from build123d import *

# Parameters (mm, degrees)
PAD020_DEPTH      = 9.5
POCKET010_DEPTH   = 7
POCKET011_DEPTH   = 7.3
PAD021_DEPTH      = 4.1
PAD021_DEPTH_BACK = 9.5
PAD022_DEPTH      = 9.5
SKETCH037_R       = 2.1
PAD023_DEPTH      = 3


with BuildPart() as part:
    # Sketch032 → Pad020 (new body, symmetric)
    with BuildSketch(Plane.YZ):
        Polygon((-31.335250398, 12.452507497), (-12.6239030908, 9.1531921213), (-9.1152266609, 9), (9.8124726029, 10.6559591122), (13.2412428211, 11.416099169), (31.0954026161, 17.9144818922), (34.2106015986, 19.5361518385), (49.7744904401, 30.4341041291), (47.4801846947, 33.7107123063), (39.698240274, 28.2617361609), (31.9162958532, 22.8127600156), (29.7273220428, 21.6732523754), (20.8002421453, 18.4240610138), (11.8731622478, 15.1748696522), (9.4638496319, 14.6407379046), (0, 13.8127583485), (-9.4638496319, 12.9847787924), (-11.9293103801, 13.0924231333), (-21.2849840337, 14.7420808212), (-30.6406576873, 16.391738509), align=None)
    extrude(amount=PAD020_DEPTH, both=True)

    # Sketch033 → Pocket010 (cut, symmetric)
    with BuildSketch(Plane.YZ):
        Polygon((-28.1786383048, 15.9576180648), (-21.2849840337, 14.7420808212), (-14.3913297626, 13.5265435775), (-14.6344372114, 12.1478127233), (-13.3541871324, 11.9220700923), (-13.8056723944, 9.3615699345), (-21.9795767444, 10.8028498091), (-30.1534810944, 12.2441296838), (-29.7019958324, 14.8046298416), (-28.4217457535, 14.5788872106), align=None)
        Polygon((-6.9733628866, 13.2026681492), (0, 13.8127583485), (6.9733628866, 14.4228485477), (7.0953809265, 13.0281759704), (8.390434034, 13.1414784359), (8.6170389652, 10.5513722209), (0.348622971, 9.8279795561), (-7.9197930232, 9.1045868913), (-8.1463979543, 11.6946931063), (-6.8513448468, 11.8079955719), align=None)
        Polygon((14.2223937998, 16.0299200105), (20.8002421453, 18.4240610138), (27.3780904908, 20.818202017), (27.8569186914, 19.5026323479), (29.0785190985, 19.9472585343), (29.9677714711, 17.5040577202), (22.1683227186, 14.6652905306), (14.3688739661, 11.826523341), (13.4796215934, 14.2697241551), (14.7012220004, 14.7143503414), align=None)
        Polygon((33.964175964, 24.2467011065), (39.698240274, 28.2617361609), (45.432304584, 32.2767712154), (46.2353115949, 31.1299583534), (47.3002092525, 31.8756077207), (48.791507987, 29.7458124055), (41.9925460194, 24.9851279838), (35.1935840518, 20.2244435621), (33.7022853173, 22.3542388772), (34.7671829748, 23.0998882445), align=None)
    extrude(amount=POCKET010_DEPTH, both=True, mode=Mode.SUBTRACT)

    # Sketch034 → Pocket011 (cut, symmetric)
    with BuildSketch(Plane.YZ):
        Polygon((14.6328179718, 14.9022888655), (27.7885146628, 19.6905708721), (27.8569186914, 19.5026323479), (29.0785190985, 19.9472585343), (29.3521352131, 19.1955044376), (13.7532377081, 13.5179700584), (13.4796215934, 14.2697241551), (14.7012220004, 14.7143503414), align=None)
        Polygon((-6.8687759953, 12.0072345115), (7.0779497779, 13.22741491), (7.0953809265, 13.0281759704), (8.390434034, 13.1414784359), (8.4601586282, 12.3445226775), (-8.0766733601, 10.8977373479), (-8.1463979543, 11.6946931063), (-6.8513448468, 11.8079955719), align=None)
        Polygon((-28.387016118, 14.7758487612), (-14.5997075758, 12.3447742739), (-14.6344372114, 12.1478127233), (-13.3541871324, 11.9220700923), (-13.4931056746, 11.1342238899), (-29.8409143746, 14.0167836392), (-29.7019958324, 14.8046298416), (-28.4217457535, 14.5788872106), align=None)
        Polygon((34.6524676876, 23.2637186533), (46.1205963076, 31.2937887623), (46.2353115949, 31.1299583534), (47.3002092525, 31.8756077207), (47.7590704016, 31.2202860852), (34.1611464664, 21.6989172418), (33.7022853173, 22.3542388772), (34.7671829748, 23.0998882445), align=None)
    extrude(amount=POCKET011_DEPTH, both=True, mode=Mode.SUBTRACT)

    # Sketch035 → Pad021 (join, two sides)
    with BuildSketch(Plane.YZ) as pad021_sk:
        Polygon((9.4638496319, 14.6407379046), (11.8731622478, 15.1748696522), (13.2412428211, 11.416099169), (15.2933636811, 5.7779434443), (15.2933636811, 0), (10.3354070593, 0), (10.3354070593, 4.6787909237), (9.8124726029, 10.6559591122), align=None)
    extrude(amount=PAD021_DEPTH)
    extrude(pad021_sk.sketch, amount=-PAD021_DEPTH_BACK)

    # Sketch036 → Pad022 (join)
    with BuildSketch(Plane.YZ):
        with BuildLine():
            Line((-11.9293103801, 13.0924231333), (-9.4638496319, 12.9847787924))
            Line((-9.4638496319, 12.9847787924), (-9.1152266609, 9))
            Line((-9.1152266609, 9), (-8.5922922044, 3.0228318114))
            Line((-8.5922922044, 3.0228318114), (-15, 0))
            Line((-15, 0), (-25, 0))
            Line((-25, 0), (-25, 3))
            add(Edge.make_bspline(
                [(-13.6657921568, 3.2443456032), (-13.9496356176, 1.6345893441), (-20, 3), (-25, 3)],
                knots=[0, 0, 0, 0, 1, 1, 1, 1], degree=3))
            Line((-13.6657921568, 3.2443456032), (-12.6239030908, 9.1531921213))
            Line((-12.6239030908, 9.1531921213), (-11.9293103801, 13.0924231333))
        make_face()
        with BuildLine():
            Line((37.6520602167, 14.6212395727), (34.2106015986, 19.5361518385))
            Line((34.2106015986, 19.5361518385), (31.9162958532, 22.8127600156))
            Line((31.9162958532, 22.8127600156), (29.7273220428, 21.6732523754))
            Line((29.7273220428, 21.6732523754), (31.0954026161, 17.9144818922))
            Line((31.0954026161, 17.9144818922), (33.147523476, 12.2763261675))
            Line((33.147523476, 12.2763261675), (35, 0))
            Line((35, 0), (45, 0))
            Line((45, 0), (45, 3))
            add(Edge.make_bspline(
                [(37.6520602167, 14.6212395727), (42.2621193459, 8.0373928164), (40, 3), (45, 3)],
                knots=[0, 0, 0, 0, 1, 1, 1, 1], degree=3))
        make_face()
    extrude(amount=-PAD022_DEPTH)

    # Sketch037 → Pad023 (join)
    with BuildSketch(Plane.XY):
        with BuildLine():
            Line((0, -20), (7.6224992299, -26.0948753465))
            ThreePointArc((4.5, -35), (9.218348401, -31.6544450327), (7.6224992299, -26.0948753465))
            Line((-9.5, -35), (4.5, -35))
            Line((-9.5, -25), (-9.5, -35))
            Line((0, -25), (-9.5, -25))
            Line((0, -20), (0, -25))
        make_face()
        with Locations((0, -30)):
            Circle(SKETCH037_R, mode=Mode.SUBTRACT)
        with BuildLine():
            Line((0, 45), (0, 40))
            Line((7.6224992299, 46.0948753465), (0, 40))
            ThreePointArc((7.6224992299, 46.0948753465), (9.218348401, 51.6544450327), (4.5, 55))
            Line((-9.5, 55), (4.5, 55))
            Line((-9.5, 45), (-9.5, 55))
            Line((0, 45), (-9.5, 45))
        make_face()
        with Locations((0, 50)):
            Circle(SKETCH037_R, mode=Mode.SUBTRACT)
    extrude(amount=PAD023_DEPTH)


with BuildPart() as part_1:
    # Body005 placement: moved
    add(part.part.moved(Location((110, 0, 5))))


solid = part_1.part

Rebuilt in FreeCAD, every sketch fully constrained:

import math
import FreeCAD as App
import Part
import Sketcher
from FreeCAD import Vector
Q = App.Units.Quantity

doc = App.newDocument("Part")
params = doc.addObject("Spreadsheet::Sheet", "Params")
for row, (alias, value) in enumerate([
    ("sketch1_length", "19 mm"),
    ("sketch1_length2", "4 mm"),
    ("sketch1_length3", "9.5 mm"),
    ("pad1_length", "19 mm"),
    ("sketch2_length", "7 mm"),
    ("sketch2_length2", "1.4 mm"),
    ("sketch2_length3", "1.3 mm"),
    ("sketch2_length4", "2.6 mm"),
    ("pocket1_length", "14 mm"),
    ("sketch3_length", "14 mm"),
    ("sketch3_length2", "0.2 mm"),
    ("sketch3_length3", "1.3 mm"),
    ("sketch3_length4", "0.8 mm"),
    ("pocket2_length", "14.6 mm"),
    ("sketch4_length", "4 mm"),
    ("sketch4_length2", "6 mm"),
    ("pad2_length", "4.1 mm"),
    ("pad2_length2", "9.5 mm"),
    ("sketch5_width", "10 mm"),
    ("sketch5_length", "4 mm"),
    ("sketch5_length2", "6 mm"),
    ("sketch5_length3", "10 mm"),
    ("pad3_length", "9.5 mm"),
    ("sketch6_radius", "5 mm"),
    ("sketch6_diameter", "4.2 mm"),
    ("sketch6_width", "14 mm"),
    ("sketch6_height", "5 mm"),
    ("sketch6_height2", "10 mm"),
    ("pad4_length", "3 mm"),
], start=1):
    params.set(f"A{row}", alias)
    params.set(f"B{row}", "=" + value)
    params.setAlias(f"B{row}", alias)

body = doc.addObject("PartDesign::Body", "Body")

# Sketch on YZ plane
sketch1 = doc.addObject("Sketcher::SketchObject", "Sketch")
body.addObject(sketch1)
sketch1.AttachmentSupport = (doc.YZ_Plane, [""])
sketch1.MapMode = "FlatFace"
sketch1.addGeometry(Part.LineSegment(Vector(-31.33525, 12.452507, 0), Vector(-12.623903, 9.153192, 0)), False)
sketch1.addGeometry(Part.LineSegment(Vector(-12.623903, 9.153192, 0), Vector(-9.115227, 9, 0)), False)
sketch1.addGeometry(Part.LineSegment(Vector(-9.115227, 9, 0), Vector(9.812473, 10.655959, 0)), False)
sketch1.addGeometry(Part.LineSegment(Vector(9.812473, 10.655959, 0), Vector(13.241243, 11.416099, 0)), False)
sketch1.addGeometry(Part.LineSegment(Vector(13.241243, 11.416099, 0), Vector(31.095403, 17.914482, 0)), False)
sketch1.addGeometry(Part.LineSegment(Vector(31.095403, 17.914482, 0), Vector(34.210602, 19.536152, 0)), False)
sketch1.addGeometry(Part.LineSegment(Vector(34.210602, 19.536152, 0), Vector(49.77449, 30.434104, 0)), False)
sketch1.addGeometry(Part.LineSegment(Vector(49.77449, 30.434104, 0), Vector(47.480185, 33.710712, 0)), False)
sketch1.addGeometry(Part.LineSegment(Vector(47.480185, 33.710712, 0), Vector(39.69824, 28.261736, 0)), False)
sketch1.addGeometry(Part.LineSegment(Vector(39.69824, 28.261736, 0), Vector(31.916296, 22.81276, 0)), False)
sketch1.addGeometry(Part.LineSegment(Vector(31.916296, 22.81276, 0), Vector(29.727322, 21.673252, 0)), False)
sketch1.addGeometry(Part.LineSegment(Vector(29.727322, 21.673252, 0), Vector(11.873162, 15.17487, 0)), False)
sketch1.addGeometry(Part.LineSegment(Vector(11.873162, 15.17487, 0), Vector(9.46385, 14.640738, 0)), False)
sketch1.addGeometry(Part.LineSegment(Vector(9.46385, 14.640738, 0), Vector(-9.46385, 12.984779, 0)), False)
sketch1.addGeometry(Part.LineSegment(Vector(-9.46385, 12.984779, 0), Vector(-11.92931, 13.092423, 0)), False)
sketch1.addGeometry(Part.LineSegment(Vector(-11.92931, 13.092423, 0), Vector(-21.284984, 14.742081, 0)), False)
sketch1.addGeometry(Part.LineSegment(Vector(-21.284984, 14.742081, 0), Vector(-30.640658, 16.391739, 0)), False)
sketch1.addGeometry(Part.LineSegment(Vector(-30.640658, 16.391739, 0), Vector(-31.33525, 12.452507, 0)), False)
sketch1.addConstraint(Sketcher.Constraint("Coincident", 0, 2, 1, 1))
sketch1.addConstraint(Sketcher.Constraint("Coincident", 1, 2, 2, 1))
sketch1.addConstraint(Sketcher.Constraint("Coincident", 2, 2, 3, 1))
sketch1.addConstraint(Sketcher.Constraint("Coincident", 3, 2, 4, 1))
sketch1.addConstraint(Sketcher.Constraint("Coincident", 4, 2, 5, 1))
sketch1.addConstraint(Sketcher.Constraint("Coincident", 5, 2, 6, 1))
sketch1.addConstraint(Sketcher.Constraint("Coincident", 6, 2, 7, 1))
sketch1.addConstraint(Sketcher.Constraint("Coincident", 7, 2, 8, 1))
sketch1.addConstraint(Sketcher.Constraint("Coincident", 8, 2, 9, 1))
sketch1.addConstraint(Sketcher.Constraint("Coincident", 9, 2, 10, 1))
sketch1.addConstraint(Sketcher.Constraint("Coincident", 10, 2, 11, 1))
sketch1.addConstraint(Sketcher.Constraint("Coincident", 11, 2, 12, 1))
sketch1.addConstraint(Sketcher.Constraint("Coincident", 12, 2, 13, 1))
sketch1.addConstraint(Sketcher.Constraint("Coincident", 13, 2, 14, 1))
sketch1.addConstraint(Sketcher.Constraint("Coincident", 14, 2, 15, 1))
sketch1.addConstraint(Sketcher.Constraint("Coincident", 15, 2, 16, 1))
sketch1.addConstraint(Sketcher.Constraint("Coincident", 16, 2, 17, 1))
sketch1.addConstraint(Sketcher.Constraint("Coincident", 17, 2, 0, 1))
sketch1.addConstraint(Sketcher.Constraint("Perpendicular", 6, 7))
sketch1.addConstraint(Sketcher.Constraint("Perpendicular", 7, 8))
sketch1.addConstraint(Sketcher.Constraint("Parallel", 8, 9))
sketch1.addConstraint(Sketcher.Constraint("Parallel", 5, 10))
sketch1.addConstraint(Sketcher.Constraint("Parallel", 4, 11))
sketch1.addConstraint(Sketcher.Constraint("Parallel", 3, 12))
sketch1.addConstraint(Sketcher.Constraint("Parallel", 2, 13))
sketch1.addConstraint(Sketcher.Constraint("Parallel", 1, 14))
sketch1.addConstraint(Sketcher.Constraint("Parallel", 0, 15))
sketch1.addConstraint(Sketcher.Constraint("Parallel", 15, 16))
sketch1.addConstraint(Sketcher.Constraint("Perpendicular", 16, 17))
sketch1.addConstraint(Sketcher.Constraint("Equal", 0, 2))
sketch1.addConstraint(Sketcher.Constraint("Equal", 1, 3))
sketch1.addConstraint(Sketcher.Constraint("Equal", 2, 4))
sketch1.addConstraint(Sketcher.Constraint("Equal", 3, 5))
sketch1.addConstraint(Sketcher.Constraint("Equal", 4, 6))
sketch1.addConstraint(Sketcher.Constraint("Equal", 8, 9))
sketch1.addConstraint(Sketcher.Constraint("Equal", 6, 11))
sketch1.addConstraint(Sketcher.Constraint("Equal", 10, 12))
sketch1.addConstraint(Sketcher.Constraint("Equal", 11, 13))
sketch1.addConstraint(Sketcher.Constraint("Equal", 12, 14))
sketch1.addConstraint(Sketcher.Constraint("Equal", 9, 15))
sketch1.addConstraint(Sketcher.Constraint("Equal", 15, 16))
sketch1.addConstraint(Sketcher.Constraint("Equal", 7, 17))
sketch1.addConstraint(Sketcher.Constraint("Angle", 0, Q("-10 deg")))
sketch1.addConstraint(Sketcher.Constraint("Angle", 2, Q("5 deg")))
sketch1.addConstraint(Sketcher.Constraint("Angle", 4, Q("20 deg")))
sketch1.addConstraint(Sketcher.Constraint("Angle", 6, Q("35 deg")))
sketch1.addConstraint(Sketcher.Constraint("Distance", 0, 19.0))
sketch1.addConstraint(Sketcher.Constraint("Distance", 7, 4.0))
sketch1.addConstraint(Sketcher.Constraint("DistanceY", -1, 1, 1, 2, 9.0))
sketch1.addConstraint(Sketcher.Constraint("Angle", 1, Q("-2.5 deg")))
sketch1.addConstraint(Sketcher.Constraint("Angle", 3, Q("12.5 deg")))
sketch1.addConstraint(Sketcher.Constraint("Distance", 8, 9.5))
sketch1.addConstraint(Sketcher.Constraint("DistanceY", -1, 1, 3, 2, 11.416099))
sketch1.addConstraint(Sketcher.Constraint("DistanceX", -1, 1, 5, 2, 34.210602))
sketch1.setExpression("Constraints[46]", "Params.sketch1_length")
sketch1.setExpression("Constraints[47]", "Params.sketch1_length2")
sketch1.setExpression("Constraints[51]", "Params.sketch1_length3")
pad1 = doc.addObject("PartDesign::Pad", "Pad")
body.addObject(pad1)
pad1.Profile = sketch1
pad1.setExpression("Length", "Params.pad1_length")
pad1.Midplane = True

# Sketch on YZ plane
sketch2 = doc.addObject("Sketcher::SketchObject", "Sketch001")
body.addObject(sketch2)
sketch2.AttachmentSupport = (doc.YZ_Plane, [""])
sketch2.MapMode = "FlatFace"
sketch2.addGeometry(Part.LineSegment(Vector(-21.284984, 14.742081, 0), Vector(-28.178638, 15.957618, 0)), False)
sketch2.addGeometry(Part.LineSegment(Vector(-28.178638, 15.957618, 0), Vector(-28.421746, 14.578887, 0)), False)
sketch2.addGeometry(Part.LineSegment(Vector(-28.421746, 14.578887, 0), Vector(-29.701996, 14.80463, 0)), False)
sketch2.addGeometry(Part.LineSegment(Vector(-29.701996, 14.80463, 0), Vector(-30.153481, 12.24413, 0)), False)
sketch2.addGeometry(Part.LineSegment(Vector(-30.153481, 12.24413, 0), Vector(-21.979577, 10.80285, 0)), False)
sketch2.addGeometry(Part.LineSegment(Vector(-21.979577, 10.80285, 0), Vector(-13.805672, 9.36157, 0)), False)
sketch2.addGeometry(Part.LineSegment(Vector(-13.805672, 9.36157, 0), Vector(-13.354187, 11.92207, 0)), False)
sketch2.addGeometry(Part.LineSegment(Vector(-13.354187, 11.92207, 0), Vector(-14.634437, 12.147813, 0)), False)
sketch2.addGeometry(Part.LineSegment(Vector(-14.634437, 12.147813, 0), Vector(-14.39133, 13.526544, 0)), False)
sketch2.addGeometry(Part.LineSegment(Vector(-14.39133, 13.526544, 0), Vector(-21.284984, 14.742081, 0)), False)
sketch2.addGeometry(Part.LineSegment(Vector(0, 13.812758, 0), Vector(-6.973363, 13.202668, 0)), False)
sketch2.addGeometry(Part.LineSegment(Vector(-6.973363, 13.202668, 0), Vector(-6.851345, 11.807996, 0)), False)
sketch2.addGeometry(Part.LineSegment(Vector(-6.851345, 11.807996, 0), Vector(-8.146398, 11.694693, 0)), False)
sketch2.addGeometry(Part.LineSegment(Vector(-8.146398, 11.694693, 0), Vector(-7.919793, 9.104587, 0)), False)
sketch2.addGeometry(Part.LineSegment(Vector(-7.919793, 9.104587, 0), Vector(8.617039, 10.551372, 0)), False)
sketch2.addGeometry(Part.LineSegment(Vector(8.617039, 10.551372, 0), Vector(8.390434, 13.141478, 0)), False)
sketch2.addGeometry(Part.LineSegment(Vector(8.390434, 13.141478, 0), Vector(7.095381, 13.028176, 0)), False)
sketch2.addGeometry(Part.LineSegment(Vector(7.095381, 13.028176, 0), Vector(6.973363, 14.422849, 0)), False)
sketch2.addGeometry(Part.LineSegment(Vector(6.973363, 14.422849, 0), Vector(0, 13.812758, 0)), False)
sketch2.addGeometry(Part.LineSegment(Vector(20.800242, 18.424061, 0), Vector(14.222394, 16.02992, 0)), False)
sketch2.addGeometry(Part.LineSegment(Vector(14.222394, 16.02992, 0), Vector(14.701222, 14.71435, 0)), False)
sketch2.addGeometry(Part.LineSegment(Vector(14.701222, 14.71435, 0), Vector(13.479622, 14.269724, 0)), False)
sketch2.addGeometry(Part.LineSegment(Vector(13.479622, 14.269724, 0), Vector(14.368874, 11.826523, 0)), False)
sketch2.addGeometry(Part.LineSegment(Vector(14.368874, 11.826523, 0), Vector(29.967771, 17.504058, 0)), False)
sketch2.addGeometry(Part.LineSegment(Vector(29.967771, 17.504058, 0), Vector(29.078519, 19.947259, 0)), False)
sketch2.addGeometry(Part.LineSegment(Vector(29.078519, 19.947259, 0), Vector(27.856919, 19.502632, 0)), False)
sketch2.addGeometry(Part.LineSegment(Vector(27.856919, 19.502632, 0), Vector(27.37809, 20.818202, 0)), False)
sketch2.addGeometry(Part.LineSegment(Vector(27.37809, 20.818202, 0), Vector(20.800242, 18.424061, 0)), False)
sketch2.addGeometry(Part.LineSegment(Vector(39.69824, 28.261736, 0), Vector(33.964176, 24.246701, 0)), False)
sketch2.addGeometry(Part.LineSegment(Vector(33.964176, 24.246701, 0), Vector(34.767183, 23.099888, 0)), False)
sketch2.addGeometry(Part.LineSegment(Vector(34.767183, 23.099888, 0), Vector(33.702285, 22.354239, 0)), False)
sketch2.addGeometry(Part.LineSegment(Vector(33.702285, 22.354239, 0), Vector(35.193584, 20.224444, 0)), False)
sketch2.addGeometry(Part.LineSegment(Vector(35.193584, 20.224444, 0), Vector(48.791508, 29.745812, 0)), False)
sketch2.addGeometry(Part.LineSegment(Vector(48.791508, 29.745812, 0), Vector(47.300209, 31.875608, 0)), False)
sketch2.addGeometry(Part.LineSegment(Vector(47.300209, 31.875608, 0), Vector(46.235312, 31.129958, 0)), False)
sketch2.addGeometry(Part.LineSegment(Vector(46.235312, 31.129958, 0), Vector(45.432305, 32.276771, 0)), False)
sketch2.addGeometry(Part.LineSegment(Vector(45.432305, 32.276771, 0), Vector(39.69824, 28.261736, 0)), False)
sketch2.addConstraint(Sketcher.Constraint("Coincident", 0, 2, 1, 1))
sketch2.addConstraint(Sketcher.Constraint("Coincident", 1, 2, 2, 1))
sketch2.addConstraint(Sketcher.Constraint("Coincident", 2, 2, 3, 1))
sketch2.addConstraint(Sketcher.Constraint("Coincident", 3, 2, 4, 1))
sketch2.addConstraint(Sketcher.Constraint("Coincident", 4, 2, 5, 1))
sketch2.addConstraint(Sketcher.Constraint("Coincident", 5, 2, 6, 1))
sketch2.addConstraint(Sketcher.Constraint("Coincident", 6, 2, 7, 1))
sketch2.addConstraint(Sketcher.Constraint("Coincident", 7, 2, 8, 1))
sketch2.addConstraint(Sketcher.Constraint("Coincident", 8, 2, 9, 1))
sketch2.addConstraint(Sketcher.Constraint("Coincident", 9, 2, 0, 1))
sketch2.addConstraint(Sketcher.Constraint("Coincident", 10, 2, 11, 1))
sketch2.addConstraint(Sketcher.Constraint("Coincident", 11, 2, 12, 1))
sketch2.addConstraint(Sketcher.Constraint("Coincident", 12, 2, 13, 1))
sketch2.addConstraint(Sketcher.Constraint("Coincident", 13, 2, 14, 1))
sketch2.addConstraint(Sketcher.Constraint("Coincident", 14, 2, 15, 1))
sketch2.addConstraint(Sketcher.Constraint("Coincident", 15, 2, 16, 1))
sketch2.addConstraint(Sketcher.Constraint("Coincident", 16, 2, 17, 1))
sketch2.addConstraint(Sketcher.Constraint("Coincident", 17, 2, 18, 1))
sketch2.addConstraint(Sketcher.Constraint("Coincident", 18, 2, 10, 1))
sketch2.addConstraint(Sketcher.Constraint("Coincident", 19, 2, 20, 1))
sketch2.addConstraint(Sketcher.Constraint("Coincident", 20, 2, 21, 1))
sketch2.addConstraint(Sketcher.Constraint("Coincident", 21, 2, 22, 1))
sketch2.addConstraint(Sketcher.Constraint("Coincident", 22, 2, 23, 1))
sketch2.addConstraint(Sketcher.Constraint("Coincident", 23, 2, 24, 1))
sketch2.addConstraint(Sketcher.Constraint("Coincident", 24, 2, 25, 1))
sketch2.addConstraint(Sketcher.Constraint("Coincident", 25, 2, 26, 1))
sketch2.addConstraint(Sketcher.Constraint("Coincident", 26, 2, 27, 1))
sketch2.addConstraint(Sketcher.Constraint("Coincident", 27, 2, 19, 1))
sketch2.addConstraint(Sketcher.Constraint("Coincident", 28, 2, 29, 1))
sketch2.addConstraint(Sketcher.Constraint("Coincident", 29, 2, 30, 1))
sketch2.addConstraint(Sketcher.Constraint("Coincident", 30, 2, 31, 1))
sketch2.addConstraint(Sketcher.Constraint("Coincident", 31, 2, 32, 1))
sketch2.addConstraint(Sketcher.Constraint("Coincident", 32, 2, 33, 1))
sketch2.addConstraint(Sketcher.Constraint("Coincident", 33, 2, 34, 1))
sketch2.addConstraint(Sketcher.Constraint("Coincident", 34, 2, 35, 1))
sketch2.addConstraint(Sketcher.Constraint("Coincident", 35, 2, 36, 1))
sketch2.addConstraint(Sketcher.Constraint("Coincident", 36, 2, 28, 1))
sketch2.addConstraint(Sketcher.Constraint("PointOnObject", 18, 2, -2))
sketch2.addConstraint(Sketcher.Constraint("Perpendicular", 0, 1))
sketch2.addConstraint(Sketcher.Constraint("Perpendicular", 1, 2))
sketch2.addConstraint(Sketcher.Constraint("Perpendicular", 2, 3))
sketch2.addConstraint(Sketcher.Constraint("Perpendicular", 3, 4))
sketch2.addConstraint(Sketcher.Constraint("Parallel", 4, 5))
sketch2.addConstraint(Sketcher.Constraint("Perpendicular", 5, 6))
sketch2.addConstraint(Sketcher.Constraint("Perpendicular", 6, 7))
sketch2.addConstraint(Sketcher.Constraint("Perpendicular", 7, 8))
sketch2.addConstraint(Sketcher.Constraint("Perpendicular", 8, 9))
sketch2.addConstraint(Sketcher.Constraint("Perpendicular", 10, 11))
sketch2.addConstraint(Sketcher.Constraint("Perpendicular", 11, 12))
sketch2.addConstraint(Sketcher.Constraint("Perpendicular", 12, 13))
sketch2.addConstraint(Sketcher.Constraint("Perpendicular", 13, 14))
sketch2.addConstraint(Sketcher.Constraint("Perpendicular", 14, 15))
sketch2.addConstraint(Sketcher.Constraint("Perpendicular", 15, 16))
sketch2.addConstraint(Sketcher.Constraint("Perpendicular", 16, 17))
sketch2.addConstraint(Sketcher.Constraint("Perpendicular", 17, 18))
sketch2.addConstraint(Sketcher.Constraint("Perpendicular", 19, 20))
sketch2.addConstraint(Sketcher.Constraint("Perpendicular", 20, 21))
sketch2.addConstraint(Sketcher.Constraint("Perpendicular", 21, 22))
sketch2.addConstraint(Sketcher.Constraint("Perpendicular", 22, 23))
sketch2.addConstraint(Sketcher.Constraint("Perpendicular", 23, 24))
sketch2.addConstraint(Sketcher.Constraint("Perpendicular", 24, 25))
sketch2.addConstraint(Sketcher.Constraint("Perpendicular", 25, 26))
sketch2.addConstraint(Sketcher.Constraint("Perpendicular", 26, 27))
sketch2.addConstraint(Sketcher.Constraint("Perpendicular", 28, 29))
sketch2.addConstraint(Sketcher.Constraint("Perpendicular", 29, 30))
sketch2.addConstraint(Sketcher.Constraint("Perpendicular", 30, 31))
sketch2.addConstraint(Sketcher.Constraint("Perpendicular", 31, 32))
sketch2.addConstraint(Sketcher.Constraint("Perpendicular", 32, 33))
sketch2.addConstraint(Sketcher.Constraint("Perpendicular", 33, 34))
sketch2.addConstraint(Sketcher.Constraint("Perpendicular", 34, 35))
sketch2.addConstraint(Sketcher.Constraint("Perpendicular", 35, 36))
sketch2.addConstraint(Sketcher.Constraint("Equal", 4, 5))
sketch2.addConstraint(Sketcher.Constraint("Equal", 3, 6))
sketch2.addConstraint(Sketcher.Constraint("Equal", 2, 7))
sketch2.addConstraint(Sketcher.Constraint("Equal", 0, 9))
sketch2.addConstraint(Sketcher.Constraint("Equal", 9, 10))
sketch2.addConstraint(Sketcher.Constraint("Equal", 8, 11))
sketch2.addConstraint(Sketcher.Constraint("Equal", 7, 12))
sketch2.addConstraint(Sketcher.Constraint("Equal", 6, 13))
sketch2.addConstraint(Sketcher.Constraint("Equal", 13, 15))
sketch2.addConstraint(Sketcher.Constraint("Equal", 12, 16))
sketch2.addConstraint(Sketcher.Constraint("Equal", 10, 18))
sketch2.addConstraint(Sketcher.Constraint("Equal", 18, 19))
sketch2.addConstraint(Sketcher.Constraint("Equal", 17, 20))
sketch2.addConstraint(Sketcher.Constraint("Equal", 16, 21))
sketch2.addConstraint(Sketcher.Constraint("Equal", 15, 22))
sketch2.addConstraint(Sketcher.Constraint("Equal", 14, 23))
sketch2.addConstraint(Sketcher.Constraint("Equal", 22, 24))
sketch2.addConstraint(Sketcher.Constraint("Equal", 21, 25))
sketch2.addConstraint(Sketcher.Constraint("Equal", 27, 28))
sketch2.addConstraint(Sketcher.Constraint("Equal", 26, 29))
sketch2.addConstraint(Sketcher.Constraint("Equal", 25, 30))
sketch2.addConstraint(Sketcher.Constraint("Equal", 24, 31))
sketch2.addConstraint(Sketcher.Constraint("Equal", 23, 32))
sketch2.addConstraint(Sketcher.Constraint("Equal", 31, 33))
sketch2.addConstraint(Sketcher.Constraint("Equal", 30, 34))
sketch2.addConstraint(Sketcher.Constraint("Angle", 0, Q("170 deg")))
sketch2.addConstraint(Sketcher.Constraint("Angle", 10, Q("-175 deg")))
sketch2.addConstraint(Sketcher.Constraint("Angle", 19, Q("-160 deg")))
sketch2.addConstraint(Sketcher.Constraint("Angle", 28, Q("-145 deg")))
sketch2.addConstraint(Sketcher.Constraint("Distance", 0, 7.0))
sketch2.addConstraint(Sketcher.Constraint("Distance", 1, 1.4))
sketch2.addConstraint(Sketcher.Constraint("Distance", 2, 1.3))
sketch2.addConstraint(Sketcher.Constraint("Distance", 3, 2.6))
sketch2.addConstraint(Sketcher.Constraint("DistanceY", -1, 1, 28, 2, 24.246701))
sketch2.addConstraint(Sketcher.Constraint("DistanceY", 6, 2, 10, 2, 1.280598))
sketch2.addConstraint(Sketcher.Constraint("DistanceY", 17, 2, 20, 2, 0.291502))
sketch2.addConstraint(Sketcher.Constraint("DistanceY", 26, 2, 28, 2, 3.428499))
sketch2.addConstraint(Sketcher.Constraint("DistanceX", 0, 2, -1, 1, 28.178638))
sketch2.addConstraint(Sketcher.Constraint("DistanceX", -1, 1, 21, 2, 13.479622))
sketch2.addConstraint(Sketcher.Constraint("DistanceX", -1, 1, 33, 2, 47.300209))
sketch2.setExpression("Constraints[100]", "Params.sketch2_length")
sketch2.setExpression("Constraints[101]", "Params.sketch2_length2")
sketch2.setExpression("Constraints[102]", "Params.sketch2_length3")
sketch2.setExpression("Constraints[103]", "Params.sketch2_length4")
pocket1 = doc.addObject("PartDesign::Pocket", "Pocket")
body.addObject(pocket1)
pocket1.Profile = sketch2
pocket1.setExpression("Length", "Params.pocket1_length")
pocket1.Midplane = True

# Sketch on YZ plane
sketch3 = doc.addObject("Sketcher::SketchObject", "Sketch002")
body.addObject(sketch3)
sketch3.AttachmentSupport = (doc.YZ_Plane, [""])
sketch3.MapMode = "FlatFace"
sketch3.addGeometry(Part.LineSegment(Vector(27.788515, 19.690571, 0), Vector(14.632818, 14.902289, 0)), False)
sketch3.addGeometry(Part.LineSegment(Vector(14.632818, 14.902289, 0), Vector(14.701222, 14.71435, 0)), False)
sketch3.addGeometry(Part.LineSegment(Vector(14.701222, 14.71435, 0), Vector(13.479622, 14.269724, 0)), False)
sketch3.addGeometry(Part.LineSegment(Vector(13.479622, 14.269724, 0), Vector(13.753238, 13.51797, 0)), False)
sketch3.addGeometry(Part.LineSegment(Vector(13.753238, 13.51797, 0), Vector(29.352135, 19.195504, 0)), False)
sketch3.addGeometry(Part.LineSegment(Vector(29.352135, 19.195504, 0), Vector(29.078519, 19.947259, 0)), False)
sketch3.addGeometry(Part.LineSegment(Vector(29.078519, 19.947259, 0), Vector(27.856919, 19.502632, 0)), False)
sketch3.addGeometry(Part.LineSegment(Vector(27.856919, 19.502632, 0), Vector(27.788515, 19.690571, 0)), False)
sketch3.addGeometry(Part.LineSegment(Vector(7.07795, 13.227415, 0), Vector(-6.868776, 12.007235, 0)), False)
sketch3.addGeometry(Part.LineSegment(Vector(-6.868776, 12.007235, 0), Vector(-6.851345, 11.807996, 0)), False)
sketch3.addGeometry(Part.LineSegment(Vector(-6.851345, 11.807996, 0), Vector(-8.146398, 11.694693, 0)), False)
sketch3.addGeometry(Part.LineSegment(Vector(-8.146398, 11.694693, 0), Vector(-8.076673, 10.897737, 0)), False)
sketch3.addGeometry(Part.LineSegment(Vector(-8.076673, 10.897737, 0), Vector(8.460159, 12.344523, 0)), False)
sketch3.addGeometry(Part.LineSegment(Vector(8.460159, 12.344523, 0), Vector(8.390434, 13.141478, 0)), False)
sketch3.addGeometry(Part.LineSegment(Vector(8.390434, 13.141478, 0), Vector(7.095381, 13.028176, 0)), False)
sketch3.addGeometry(Part.LineSegment(Vector(7.095381, 13.028176, 0), Vector(7.07795, 13.227415, 0)), False)
sketch3.addGeometry(Part.LineSegment(Vector(-14.599708, 12.344774, 0), Vector(-28.387016, 14.775849, 0)), False)
sketch3.addGeometry(Part.LineSegment(Vector(-28.387016, 14.775849, 0), Vector(-28.421746, 14.578887, 0)), False)
sketch3.addGeometry(Part.LineSegment(Vector(-28.421746, 14.578887, 0), Vector(-29.701996, 14.80463, 0)), False)
sketch3.addGeometry(Part.LineSegment(Vector(-29.701996, 14.80463, 0), Vector(-29.840914, 14.016784, 0)), False)
sketch3.addGeometry(Part.LineSegment(Vector(-29.840914, 14.016784, 0), Vector(-13.493106, 11.134224, 0)), False)
sketch3.addGeometry(Part.LineSegment(Vector(-13.493106, 11.134224, 0), Vector(-13.354187, 11.92207, 0)), False)
sketch3.addGeometry(Part.LineSegment(Vector(-13.354187, 11.92207, 0), Vector(-14.634437, 12.147813, 0)), False)
sketch3.addGeometry(Part.LineSegment(Vector(-14.634437, 12.147813, 0), Vector(-14.599708, 12.344774, 0)), False)
sketch3.addGeometry(Part.LineSegment(Vector(46.120596, 31.293789, 0), Vector(34.652468, 23.263719, 0)), False)
sketch3.addGeometry(Part.LineSegment(Vector(34.652468, 23.263719, 0), Vector(34.767183, 23.099888, 0)), False)
sketch3.addGeometry(Part.LineSegment(Vector(34.767183, 23.099888, 0), Vector(33.702285, 22.354239, 0)), False)
sketch3.addGeometry(Part.LineSegment(Vector(33.702285, 22.354239, 0), Vector(34.161146, 21.698917, 0)), False)
sketch3.addGeometry(Part.LineSegment(Vector(34.161146, 21.698917, 0), Vector(47.75907, 31.220286, 0)), False)
sketch3.addGeometry(Part.LineSegment(Vector(47.75907, 31.220286, 0), Vector(47.300209, 31.875608, 0)), False)
sketch3.addGeometry(Part.LineSegment(Vector(47.300209, 31.875608, 0), Vector(46.235312, 31.129958, 0)), False)
sketch3.addGeometry(Part.LineSegment(Vector(46.235312, 31.129958, 0), Vector(46.120596, 31.293789, 0)), False)
sketch3.addConstraint(Sketcher.Constraint("Coincident", 0, 2, 1, 1))
sketch3.addConstraint(Sketcher.Constraint("Coincident", 1, 2, 2, 1))
sketch3.addConstraint(Sketcher.Constraint("Coincident", 2, 2, 3, 1))
sketch3.addConstraint(Sketcher.Constraint("Coincident", 3, 2, 4, 1))
sketch3.addConstraint(Sketcher.Constraint("Coincident", 4, 2, 5, 1))
sketch3.addConstraint(Sketcher.Constraint("Coincident", 5, 2, 6, 1))
sketch3.addConstraint(Sketcher.Constraint("Coincident", 6, 2, 7, 1))
sketch3.addConstraint(Sketcher.Constraint("Coincident", 7, 2, 0, 1))
sketch3.addConstraint(Sketcher.Constraint("Coincident", 8, 2, 9, 1))
sketch3.addConstraint(Sketcher.Constraint("Coincident", 9, 2, 10, 1))
sketch3.addConstraint(Sketcher.Constraint("Coincident", 10, 2, 11, 1))
sketch3.addConstraint(Sketcher.Constraint("Coincident", 11, 2, 12, 1))
sketch3.addConstraint(Sketcher.Constraint("Coincident", 12, 2, 13, 1))
sketch3.addConstraint(Sketcher.Constraint("Coincident", 13, 2, 14, 1))
sketch3.addConstraint(Sketcher.Constraint("Coincident", 14, 2, 15, 1))
sketch3.addConstraint(Sketcher.Constraint("Coincident", 15, 2, 8, 1))
sketch3.addConstraint(Sketcher.Constraint("Coincident", 16, 2, 17, 1))
sketch3.addConstraint(Sketcher.Constraint("Coincident", 17, 2, 18, 1))
sketch3.addConstraint(Sketcher.Constraint("Coincident", 18, 2, 19, 1))
sketch3.addConstraint(Sketcher.Constraint("Coincident", 19, 2, 20, 1))
sketch3.addConstraint(Sketcher.Constraint("Coincident", 20, 2, 21, 1))
sketch3.addConstraint(Sketcher.Constraint("Coincident", 21, 2, 22, 1))
sketch3.addConstraint(Sketcher.Constraint("Coincident", 22, 2, 23, 1))
sketch3.addConstraint(Sketcher.Constraint("Coincident", 23, 2, 16, 1))
sketch3.addConstraint(Sketcher.Constraint("Coincident", 24, 2, 25, 1))
sketch3.addConstraint(Sketcher.Constraint("Coincident", 25, 2, 26, 1))
sketch3.addConstraint(Sketcher.Constraint("Coincident", 26, 2, 27, 1))
sketch3.addConstraint(Sketcher.Constraint("Coincident", 27, 2, 28, 1))
sketch3.addConstraint(Sketcher.Constraint("Coincident", 28, 2, 29, 1))
sketch3.addConstraint(Sketcher.Constraint("Coincident", 29, 2, 30, 1))
sketch3.addConstraint(Sketcher.Constraint("Coincident", 30, 2, 31, 1))
sketch3.addConstraint(Sketcher.Constraint("Coincident", 31, 2, 24, 1))
sketch3.addConstraint(Sketcher.Constraint("Perpendicular", 0, 1))
sketch3.addConstraint(Sketcher.Constraint("Perpendicular", 1, 2))
sketch3.addConstraint(Sketcher.Constraint("Perpendicular", 2, 3))
sketch3.addConstraint(Sketcher.Constraint("Perpendicular", 3, 4))
sketch3.addConstraint(Sketcher.Constraint("Perpendicular", 4, 5))
sketch3.addConstraint(Sketcher.Constraint("Perpendicular", 5, 6))
sketch3.addConstraint(Sketcher.Constraint("Perpendicular", 6, 7))
sketch3.addConstraint(Sketcher.Constraint("Perpendicular", 8, 9))
sketch3.addConstraint(Sketcher.Constraint("Perpendicular", 9, 10))
sketch3.addConstraint(Sketcher.Constraint("Perpendicular", 10, 11))
sketch3.addConstraint(Sketcher.Constraint("Perpendicular", 11, 12))
sketch3.addConstraint(Sketcher.Constraint("Perpendicular", 12, 13))
sketch3.addConstraint(Sketcher.Constraint("Perpendicular", 13, 14))
sketch3.addConstraint(Sketcher.Constraint("Perpendicular", 14, 15))
sketch3.addConstraint(Sketcher.Constraint("Perpendicular", 16, 17))
sketch3.addConstraint(Sketcher.Constraint("Perpendicular", 17, 18))
sketch3.addConstraint(Sketcher.Constraint("Perpendicular", 18, 19))
sketch3.addConstraint(Sketcher.Constraint("Perpendicular", 19, 20))
sketch3.addConstraint(Sketcher.Constraint("Perpendicular", 20, 21))
sketch3.addConstraint(Sketcher.Constraint("Perpendicular", 21, 22))
sketch3.addConstraint(Sketcher.Constraint("Perpendicular", 22, 23))
sketch3.addConstraint(Sketcher.Constraint("Perpendicular", 24, 25))
sketch3.addConstraint(Sketcher.Constraint("Perpendicular", 25, 26))
sketch3.addConstraint(Sketcher.Constraint("Perpendicular", 26, 27))
sketch3.addConstraint(Sketcher.Constraint("Perpendicular", 27, 28))
sketch3.addConstraint(Sketcher.Constraint("Perpendicular", 28, 29))
sketch3.addConstraint(Sketcher.Constraint("Perpendicular", 29, 30))
sketch3.addConstraint(Sketcher.Constraint("Perpendicular", 30, 31))
sketch3.addConstraint(Sketcher.Constraint("Equal", 3, 5))
sketch3.addConstraint(Sketcher.Constraint("Equal", 2, 6))
sketch3.addConstraint(Sketcher.Constraint("Equal", 0, 8))
sketch3.addConstraint(Sketcher.Constraint("Equal", 7, 9))
sketch3.addConstraint(Sketcher.Constraint("Equal", 6, 10))
sketch3.addConstraint(Sketcher.Constraint("Equal", 5, 11))
sketch3.addConstraint(Sketcher.Constraint("Equal", 4, 12))
sketch3.addConstraint(Sketcher.Constraint("Equal", 11, 13))
sketch3.addConstraint(Sketcher.Constraint("Equal", 8, 16))
sketch3.addConstraint(Sketcher.Constraint("Equal", 15, 17))
sketch3.addConstraint(Sketcher.Constraint("Equal", 14, 18))
sketch3.addConstraint(Sketcher.Constraint("Equal", 13, 19))
sketch3.addConstraint(Sketcher.Constraint("Equal", 12, 20))
sketch3.addConstraint(Sketcher.Constraint("Equal", 19, 21))
sketch3.addConstraint(Sketcher.Constraint("Equal", 16, 24))
sketch3.addConstraint(Sketcher.Constraint("Equal", 23, 25))
sketch3.addConstraint(Sketcher.Constraint("Equal", 22, 26))
sketch3.addConstraint(Sketcher.Constraint("Equal", 21, 27))
sketch3.addConstraint(Sketcher.Constraint("Equal", 20, 28))
sketch3.addConstraint(Sketcher.Constraint("Equal", 27, 29))
sketch3.addConstraint(Sketcher.Constraint("Angle", 0, Q("-160 deg")))
sketch3.addConstraint(Sketcher.Constraint("Angle", 8, Q("-175 deg")))
sketch3.addConstraint(Sketcher.Constraint("Angle", 16, Q("170 deg")))
sketch3.addConstraint(Sketcher.Constraint("Angle", 24, Q("-145 deg")))
sketch3.addConstraint(Sketcher.Constraint("Distance", 0, 14.0))
sketch3.addConstraint(Sketcher.Constraint("Distance", 1, 0.2))
sketch3.addConstraint(Sketcher.Constraint("Distance", 2, 1.3))
sketch3.addConstraint(Sketcher.Constraint("Distance", 3, 0.8))
sketch3.addConstraint(Sketcher.Constraint("DistanceY", 12, 2, 2, 2, 1.925201))
sketch3.addConstraint(Sketcher.Constraint("DistanceX", 17, 2, 9, 2, 21.570401))
sketch3.addConstraint(Sketcher.Constraint("DistanceY", -1, 1, 0, 2, 14.902289))
sketch3.addConstraint(Sketcher.Constraint("DistanceX", -1, 1, 2, 2, 13.479622))
sketch3.addConstraint(Sketcher.Constraint("DistanceX", -1, 1, 12, 2, 8.460159))
sketch3.addConstraint(Sketcher.Constraint("DistanceY", -1, 1, 16, 2, 14.775849))
sketch3.addConstraint(Sketcher.Constraint("DistanceY", -1, 1, 24, 2, 23.263719))
sketch3.addConstraint(Sketcher.Constraint("DistanceX", -1, 1, 28, 2, 47.75907))
sketch3.setExpression("Constraints[84]", "Params.sketch3_length")
sketch3.setExpression("Constraints[85]", "Params.sketch3_length2")
sketch3.setExpression("Constraints[86]", "Params.sketch3_length3")
sketch3.setExpression("Constraints[87]", "Params.sketch3_length4")
pocket2 = doc.addObject("PartDesign::Pocket", "Pocket001")
body.addObject(pocket2)
pocket2.Profile = sketch3
pocket2.setExpression("Length", "Params.pocket2_length")
pocket2.Midplane = True

# Sketch on YZ plane
sketch4 = doc.addObject("Sketcher::SketchObject", "Sketch003")
body.addObject(sketch4)
sketch4.AttachmentSupport = (doc.YZ_Plane, [""])
sketch4.MapMode = "FlatFace"
sketch4.addGeometry(Part.LineSegment(Vector(11.873162, 15.17487, 0), Vector(9.46385, 14.640738, 0)), False)
sketch4.addGeometry(Part.LineSegment(Vector(9.46385, 14.640738, 0), Vector(9.812473, 10.655959, 0)), False)
sketch4.addGeometry(Part.LineSegment(Vector(9.812473, 10.655959, 0), Vector(10.335407, 4.678791, 0)), False)
sketch4.addGeometry(Part.LineSegment(Vector(10.335407, 4.678791, 0), Vector(10.335407, 0, 0)), False)
sketch4.addGeometry(Part.LineSegment(Vector(10.335407, 0, 0), Vector(15.293364, 0, 0)), False)
sketch4.addGeometry(Part.LineSegment(Vector(15.293364, 0, 0), Vector(15.293364, 5.777943, 0)), False)
sketch4.addGeometry(Part.LineSegment(Vector(15.293364, 5.777943, 0), Vector(13.241243, 11.416099, 0)), False)
sketch4.addGeometry(Part.LineSegment(Vector(13.241243, 11.416099, 0), Vector(11.873162, 15.17487, 0)), False)
sketch4.addConstraint(Sketcher.Constraint("Coincident", 0, 2, 1, 1))
sketch4.addConstraint(Sketcher.Constraint("Coincident", 1, 2, 2, 1))
sketch4.addConstraint(Sketcher.Constraint("Coincident", 2, 2, 3, 1))
sketch4.addConstraint(Sketcher.Constraint("Coincident", 3, 2, 4, 1))
sketch4.addConstraint(Sketcher.Constraint("Coincident", 4, 2, 5, 1))
sketch4.addConstraint(Sketcher.Constraint("Coincident", 5, 2, 6, 1))
sketch4.addConstraint(Sketcher.Constraint("Coincident", 6, 2, 7, 1))
sketch4.addConstraint(Sketcher.Constraint("Coincident", 7, 2, 0, 1))
sketch4.addConstraint(Sketcher.Constraint("Vertical", 3))
sketch4.addConstraint(Sketcher.Constraint("Horizontal", 4))
sketch4.addConstraint(Sketcher.Constraint("Vertical", 5))
sketch4.addConstraint(Sketcher.Constraint("PointOnObject", 3, 2, -1))
sketch4.addConstraint(Sketcher.Constraint("Parallel", 1, 2))
sketch4.addConstraint(Sketcher.Constraint("Parallel", 6, 7))
sketch4.addConstraint(Sketcher.Constraint("Equal", 2, 6))
sketch4.addConstraint(Sketcher.Constraint("Equal", 1, 7))
sketch4.addConstraint(Sketcher.Constraint("Angle", 1, Q("-85 deg")))
sketch4.addConstraint(Sketcher.Constraint("Angle", 6, Q("110 deg")))
sketch4.addConstraint(Sketcher.Constraint("Distance", 1, 4.0))
sketch4.addConstraint(Sketcher.Constraint("Distance", 2, 6.0))
sketch4.addConstraint(Sketcher.Constraint("Angle", 0, Q("-167.5 deg")))
sketch4.addConstraint(Sketcher.Constraint("DistanceY", 3, 2, 3, 1, 4.678791))
sketch4.addConstraint(Sketcher.Constraint("DistanceY", -1, 1, 6, 2, 11.416099))
sketch4.addConstraint(Sketcher.Constraint("DistanceX", -1, 1, 0, 2, 9.46385))
sketch4.setExpression("Constraints[18]", "Params.sketch4_length")
sketch4.setExpression("Constraints[19]", "Params.sketch4_length2")
pad2 = doc.addObject("PartDesign::Pad", "Pad001")
body.addObject(pad2)
pad2.Profile = sketch4
pad2.Type = "TwoLengths"
pad2.setExpression("Length", "Params.pad2_length")
pad2.setExpression("Length2", "Params.pad2_length2")

# Sketch on YZ plane
sketch5 = doc.addObject("Sketcher::SketchObject", "Sketch004")
body.addObject(sketch5)
sketch5.AttachmentSupport = (doc.YZ_Plane, [""])
sketch5.MapMode = "FlatFace"
sketch5.addGeometry(Part.LineSegment(Vector(-9.46385, 12.984779, 0), Vector(-11.92931, 13.092423, 0)), False)
sketch5.addGeometry(Part.LineSegment(Vector(-11.92931, 13.092423, 0), Vector(-12.623903, 9.153192, 0)), False)
sketch5.addGeometry(Part.LineSegment(Vector(-12.623903, 9.153192, 0), Vector(-13.665792, 3.244346, 0)), False)
sketch5.addGeometry(Part.BSplineCurve([Vector(-13.665792, 3.244346, 0), Vector(-13.949636, 1.634589, 0), Vector(-20, 3, 0), Vector(-25, 3, 0)], [4, 4], [0, 1], False, 3, [1, 1, 1, 1], False), False)
sketch5.addGeometry(Part.LineSegment(Vector(-25, 3, 0), Vector(-25, 0, 0)), False)
sketch5.addGeometry(Part.LineSegment(Vector(-25, 0, 0), Vector(-15, 0, 0)), False)
sketch5.addGeometry(Part.LineSegment(Vector(-15, 0, 0), Vector(-8.592292, 3.022832, 0)), False)
sketch5.addGeometry(Part.LineSegment(Vector(-8.592292, 3.022832, 0), Vector(-9.46385, 12.984779, 0)), False)
sketch5.addGeometry(Part.LineSegment(Vector(37.65206, 14.62124, 0), Vector(34.210602, 19.536152, 0)), False)
sketch5.addGeometry(Part.LineSegment(Vector(34.210602, 19.536152, 0), Vector(31.916296, 22.81276, 0)), False)
sketch5.addGeometry(Part.LineSegment(Vector(31.916296, 22.81276, 0), Vector(29.727322, 21.673252, 0)), False)
sketch5.addGeometry(Part.LineSegment(Vector(29.727322, 21.673252, 0), Vector(31.095403, 17.914482, 0)), False)
sketch5.addGeometry(Part.LineSegment(Vector(31.095403, 17.914482, 0), Vector(33.147523, 12.276326, 0)), False)
sketch5.addGeometry(Part.LineSegment(Vector(33.147523, 12.276326, 0), Vector(35, 0, 0)), False)
sketch5.addGeometry(Part.LineSegment(Vector(35, 0, 0), Vector(45, 0, 0)), False)
sketch5.addGeometry(Part.LineSegment(Vector(45, 0, 0), Vector(45, 3, 0)), False)
sketch5.addGeometry(Part.BSplineCurve([Vector(37.65206, 14.62124, 0), Vector(42.262119, 8.037393, 0), Vector(40, 3, 0), Vector(45, 3, 0)], [4, 4], [0, 1], False, 3, [1, 1, 1, 1], False), False)
sketch5.addConstraint(Sketcher.Constraint("Block", 3))
sketch5.addConstraint(Sketcher.Constraint("Block", 16))
sketch5.addConstraint(Sketcher.Constraint("Coincident", 0, 2, 1, 1))
sketch5.addConstraint(Sketcher.Constraint("Coincident", 1, 2, 2, 1))
sketch5.addConstraint(Sketcher.Constraint("Coincident", 2, 2, 3, 1))
sketch5.addConstraint(Sketcher.Constraint("Coincident", 3, 2, 4, 1))
sketch5.addConstraint(Sketcher.Constraint("Coincident", 4, 2, 5, 1))
sketch5.addConstraint(Sketcher.Constraint("Coincident", 5, 2, 6, 1))
sketch5.addConstraint(Sketcher.Constraint("Coincident", 6, 2, 7, 1))
sketch5.addConstraint(Sketcher.Constraint("Coincident", 7, 2, 0, 1))
sketch5.addConstraint(Sketcher.Constraint("Coincident", 8, 2, 9, 1))
sketch5.addConstraint(Sketcher.Constraint("Coincident", 9, 2, 10, 1))
sketch5.addConstraint(Sketcher.Constraint("Coincident", 10, 2, 11, 1))
sketch5.addConstraint(Sketcher.Constraint("Coincident", 11, 2, 12, 1))
sketch5.addConstraint(Sketcher.Constraint("Coincident", 12, 2, 13, 1))
sketch5.addConstraint(Sketcher.Constraint("Coincident", 13, 2, 14, 1))
sketch5.addConstraint(Sketcher.Constraint("Coincident", 14, 2, 15, 1))
sketch5.addConstraint(Sketcher.Constraint("Coincident", 15, 2, 16, 2))
sketch5.addConstraint(Sketcher.Constraint("Coincident", 16, 1, 8, 1))
sketch5.addConstraint(Sketcher.Constraint("Vertical", 4))
sketch5.addConstraint(Sketcher.Constraint("Horizontal", 5))
sketch5.addConstraint(Sketcher.Constraint("Horizontal", 14))
sketch5.addConstraint(Sketcher.Constraint("Vertical", 15))
sketch5.addConstraint(Sketcher.Constraint("PointOnObject", 4, 2, -1))
sketch5.addConstraint(Sketcher.Constraint("PointOnObject", 13, 2, -1))
sketch5.addConstraint(Sketcher.Constraint("Parallel", 1, 2))
sketch5.addConstraint(Sketcher.Constraint("Parallel", 8, 9))
sketch5.addConstraint(Sketcher.Constraint("Parallel", 11, 12))
sketch5.addConstraint(Sketcher.Constraint("Equal", 5, 14))
sketch5.addConstraint(Sketcher.Constraint("Equal", 2, 8))
sketch5.addConstraint(Sketcher.Constraint("Equal", 1, 9))
sketch5.addConstraint(Sketcher.Constraint("Equal", 0, 10))
sketch5.addConstraint(Sketcher.Constraint("Equal", 9, 11))
sketch5.addConstraint(Sketcher.Constraint("Equal", 8, 12))
sketch5.addConstraint(Sketcher.Constraint("DistanceX", 5, 1, 5, 2, 10.0))
sketch5.addConstraint(Sketcher.Constraint("Angle", 1, Q("-100 deg")))
sketch5.addConstraint(Sketcher.Constraint("Angle", 7, Q("95 deg")))
sketch5.addConstraint(Sketcher.Constraint("Angle", 8, Q("125 deg")))
sketch5.addConstraint(Sketcher.Constraint("Angle", 11, Q("-70 deg")))
sketch5.addConstraint(Sketcher.Constraint("Distance", 1, 4.0))
sketch5.addConstraint(Sketcher.Constraint("Distance", 2, 6.0))
sketch5.addConstraint(Sketcher.Constraint("Distance", 7, 10.0))
sketch5.addConstraint(Sketcher.Constraint("Angle", 0, Q("177.5 deg")))
sketch5.addConstraint(Sketcher.Constraint("Angle", 10, Q("-152.5 deg")))
sketch5.addConstraint(Sketcher.Constraint("DistanceX", 2, 2, 6, 2, 5.0735))
sketch5.setExpression("Constraints[34]", "Params.sketch5_width")
sketch5.setExpression("Constraints[39]", "Params.sketch5_length")
sketch5.setExpression("Constraints[40]", "Params.sketch5_length2")
sketch5.setExpression("Constraints[41]", "Params.sketch5_length3")
pad3 = doc.addObject("PartDesign::Pad", "Pad002")
body.addObject(pad3)
pad3.Profile = sketch5
pad3.setExpression("Length", "Params.pad3_length")
pad3.Reversed = True

# Sketch on XY plane
sketch6 = doc.addObject("Sketcher::SketchObject", "Sketch005")
body.addObject(sketch6)
sketch6.AttachmentSupport = (doc.XY_Plane, [""])
sketch6.MapMode = "FlatFace"
sketch6.addGeometry(Part.LineSegment(Vector(7.622499, -26.094875, 0), Vector(0, -20, 0)), False)
sketch6.addGeometry(Part.LineSegment(Vector(0, -20, 0), Vector(0, -25, 0)), False)
sketch6.addGeometry(Part.LineSegment(Vector(0, -25, 0), Vector(-9.5, -25, 0)), False)
sketch6.addGeometry(Part.LineSegment(Vector(-9.5, -25, 0), Vector(-9.5, -35, 0)), False)
sketch6.addGeometry(Part.LineSegment(Vector(-9.5, -35, 0), Vector(4.5, -35, 0)), False)
sketch6.addGeometry(Part.ArcOfCircle(Part.Circle(Vector(4.5, -30, 0), Vector(0, 0, 1), 5), math.radians(-90), math.radians(51.354513)), False)
sketch6.addGeometry(Part.Circle(Vector(0, -30, 0), Vector(0, 0, 1), 2.1), False)
sketch6.addGeometry(Part.LineSegment(Vector(0, 45, 0), Vector(0, 40, 0)), False)
sketch6.addGeometry(Part.LineSegment(Vector(0, 40, 0), Vector(7.622499, 46.094875, 0)), False)
sketch6.addGeometry(Part.ArcOfCircle(Part.Circle(Vector(4.5, 50, 0), Vector(0, 0, 1), 5), math.radians(-51.354513), math.radians(90)), False)
sketch6.addGeometry(Part.LineSegment(Vector(4.5, 55, 0), Vector(-9.5, 55, 0)), False)
sketch6.addGeometry(Part.LineSegment(Vector(-9.5, 55, 0), Vector(-9.5, 45, 0)), False)
sketch6.addGeometry(Part.LineSegment(Vector(-9.5, 45, 0), Vector(0, 45, 0)), False)
sketch6.addGeometry(Part.Circle(Vector(0, 50, 0), Vector(0, 0, 1), 2.1), False)
sketch6.addConstraint(Sketcher.Constraint("Coincident", 0, 2, 1, 1))
sketch6.addConstraint(Sketcher.Constraint("Coincident", 1, 2, 2, 1))
sketch6.addConstraint(Sketcher.Constraint("Coincident", 2, 2, 3, 1))
sketch6.addConstraint(Sketcher.Constraint("Coincident", 3, 2, 4, 1))
sketch6.addConstraint(Sketcher.Constraint("Tangent", 4, 2, 5, 1))
sketch6.addConstraint(Sketcher.Constraint("Tangent", 5, 2, 0, 1))
sketch6.addConstraint(Sketcher.Constraint("Coincident", 7, 2, 8, 1))
sketch6.addConstraint(Sketcher.Constraint("Tangent", 8, 2, 9, 1))
sketch6.addConstraint(Sketcher.Constraint("Tangent", 9, 2, 10, 1))
sketch6.addConstraint(Sketcher.Constraint("Coincident", 10, 2, 11, 1))
sketch6.addConstraint(Sketcher.Constraint("Coincident", 11, 2, 12, 1))
sketch6.addConstraint(Sketcher.Constraint("Coincident", 12, 2, 7, 1))
sketch6.addConstraint(Sketcher.Constraint("Vertical", 1))
sketch6.addConstraint(Sketcher.Constraint("Horizontal", 2))
sketch6.addConstraint(Sketcher.Constraint("Vertical", 3))
sketch6.addConstraint(Sketcher.Constraint("Horizontal", 4))
sketch6.addConstraint(Sketcher.Constraint("Vertical", 7))
sketch6.addConstraint(Sketcher.Constraint("Horizontal", 10))
sketch6.addConstraint(Sketcher.Constraint("Vertical", 11))
sketch6.addConstraint(Sketcher.Constraint("Horizontal", 12))
sketch6.addConstraint(Sketcher.Constraint("Equal", 5, 9))
sketch6.addConstraint(Sketcher.Constraint("Equal", 6, 13))
sketch6.addConstraint(Sketcher.Constraint("PointOnObject", 6, 3, -2))
sketch6.addConstraint(Sketcher.Constraint("PointOnObject", 13, 3, -2))
sketch6.addConstraint(Sketcher.Constraint("PointOnObject", 0, 2, -2))
sketch6.addConstraint(Sketcher.Constraint("PointOnObject", 7, 2, -2))
sketch6.addConstraint(Sketcher.Constraint("Horizontal", 5, 3, 6, 3))
sketch6.addConstraint(Sketcher.Constraint("Horizontal", 9, 3, 13, 3))
sketch6.addConstraint(Sketcher.Constraint("Vertical", 5, 3, 9, 3))
sketch6.addConstraint(Sketcher.Constraint("Vertical", 5, 2, 8, 2))
sketch6.addConstraint(Sketcher.Constraint("Vertical", 3, 2, 10, 2))
sketch6.addConstraint(Sketcher.Constraint("Equal", 1, 7))
sketch6.addConstraint(Sketcher.Constraint("Radius", 5, 5.0))
sketch6.addConstraint(Sketcher.Constraint("Diameter", 6, 4.2))
sketch6.addConstraint(Sketcher.Constraint("DistanceX", 4, 1, 4, 2, 14.0))
sketch6.addConstraint(Sketcher.Constraint("DistanceY", 1, 2, 1, 1, 5.0))
sketch6.addConstraint(Sketcher.Constraint("DistanceY", 3, 2, 3, 1, 10.0))
sketch6.addConstraint(Sketcher.Constraint("DistanceX", 2, 2, 2, 1, 9.5))
sketch6.addConstraint(Sketcher.Constraint("DistanceY", 5, 3, -1, 1, 30.0))
sketch6.addConstraint(Sketcher.Constraint("DistanceY", -1, 1, 9, 3, 50.0))
sketch6.setExpression("Constraints[32]", "Params.sketch6_radius")
sketch6.setExpression("Constraints[33]", "Params.sketch6_diameter")
sketch6.setExpression("Constraints[34]", "Params.sketch6_width")
sketch6.setExpression("Constraints[35]", "Params.sketch6_height")
sketch6.setExpression("Constraints[36]", "Params.sketch6_height2")
pad4 = doc.addObject("PartDesign::Pad", "Pad003")
body.addObject(pad4)
pad4.Profile = sketch6
pad4.setExpression("Length", "Params.pad4_length")
body2 = doc.addObject("PartDesign::Body", "Body001")
doc.recompute()

body.Placement = App.Placement(Vector(110, 0, 5), App.Rotation(Vector(0, 0, 1), 0))
boolean = doc.addObject("PartDesign::Boolean", "Boolean")
body2.addObject(boolean)
boolean.Type = "Fuse"
boolean.addObjects([body])

doc.recompute()
